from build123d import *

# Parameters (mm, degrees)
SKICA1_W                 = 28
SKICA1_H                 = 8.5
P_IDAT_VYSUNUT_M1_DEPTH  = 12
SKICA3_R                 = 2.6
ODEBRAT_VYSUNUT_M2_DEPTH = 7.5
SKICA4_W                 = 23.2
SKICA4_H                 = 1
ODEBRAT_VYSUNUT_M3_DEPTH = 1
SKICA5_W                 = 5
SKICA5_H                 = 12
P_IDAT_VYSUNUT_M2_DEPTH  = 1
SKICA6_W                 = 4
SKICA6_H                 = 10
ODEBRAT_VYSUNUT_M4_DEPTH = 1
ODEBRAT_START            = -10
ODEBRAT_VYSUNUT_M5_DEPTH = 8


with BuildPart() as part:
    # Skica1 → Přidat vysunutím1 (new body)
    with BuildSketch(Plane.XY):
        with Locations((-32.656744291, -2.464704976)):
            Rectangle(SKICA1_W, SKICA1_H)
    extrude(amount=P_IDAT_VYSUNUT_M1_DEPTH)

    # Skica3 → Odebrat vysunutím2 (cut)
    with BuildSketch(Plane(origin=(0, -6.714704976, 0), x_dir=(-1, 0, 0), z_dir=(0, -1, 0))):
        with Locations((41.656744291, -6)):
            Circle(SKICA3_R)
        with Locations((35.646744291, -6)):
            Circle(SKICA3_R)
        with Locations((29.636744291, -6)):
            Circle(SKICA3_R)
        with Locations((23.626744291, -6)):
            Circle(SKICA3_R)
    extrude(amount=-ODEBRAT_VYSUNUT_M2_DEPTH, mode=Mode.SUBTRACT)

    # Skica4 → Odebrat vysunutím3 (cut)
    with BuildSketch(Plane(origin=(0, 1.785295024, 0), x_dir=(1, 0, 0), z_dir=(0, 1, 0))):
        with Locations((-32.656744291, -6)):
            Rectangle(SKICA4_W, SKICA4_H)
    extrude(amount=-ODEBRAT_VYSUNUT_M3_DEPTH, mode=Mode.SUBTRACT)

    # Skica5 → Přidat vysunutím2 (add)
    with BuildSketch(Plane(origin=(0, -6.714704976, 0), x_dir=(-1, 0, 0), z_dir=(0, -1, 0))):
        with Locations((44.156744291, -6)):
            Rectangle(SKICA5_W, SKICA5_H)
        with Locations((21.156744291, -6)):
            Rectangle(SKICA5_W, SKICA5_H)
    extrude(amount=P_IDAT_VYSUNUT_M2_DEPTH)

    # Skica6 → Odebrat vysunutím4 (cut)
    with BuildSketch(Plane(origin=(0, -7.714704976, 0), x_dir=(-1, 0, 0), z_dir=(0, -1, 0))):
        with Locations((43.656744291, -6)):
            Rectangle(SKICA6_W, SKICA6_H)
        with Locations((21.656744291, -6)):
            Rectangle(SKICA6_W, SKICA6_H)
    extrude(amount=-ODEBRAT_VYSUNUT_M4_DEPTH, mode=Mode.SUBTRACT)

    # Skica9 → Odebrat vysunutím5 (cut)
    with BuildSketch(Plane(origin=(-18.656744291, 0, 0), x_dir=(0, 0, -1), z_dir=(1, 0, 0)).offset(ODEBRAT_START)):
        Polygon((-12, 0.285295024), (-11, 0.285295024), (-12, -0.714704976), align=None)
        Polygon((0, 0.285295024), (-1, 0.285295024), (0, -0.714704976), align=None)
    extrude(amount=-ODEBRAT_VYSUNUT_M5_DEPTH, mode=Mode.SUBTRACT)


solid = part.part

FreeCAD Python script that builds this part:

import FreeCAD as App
import Part
import Sketcher

V = App.Vector
Q = App.Units.Quantity

doc = App.newDocument("Part")
body = doc.addObject("PartDesign::Body", "Body")

# Sketch on XY plane
sketch1 = body.newObject("Sketcher::SketchObject", "Sketch")
sketch1.AttachmentSupport = (doc.getObject("XY_Plane"), [""])
sketch1.MapMode = "FlatFace"
sketch1.addGeometry([
    Part.LineSegment(V(-47, 2, 0), V(-47, -7, 0)),
    Part.LineSegment(V(-47, -7, 0), V(-19, -7, 0)),
    Part.LineSegment(V(-19, -7, 0), V(-19, 2, 0)),
    Part.LineSegment(V(-19, 2, 0), V(-47, 2, 0)),
], False)
sketch1.addConstraint([
    Sketcher.Constraint("Coincident", 0, 2, 1, 1),
    Sketcher.Constraint("Coincident", 1, 2, 2, 1),
    Sketcher.Constraint("Coincident", 2, 2, 3, 1),
    Sketcher.Constraint("Coincident", 3, 2, 0, 1),
    Sketcher.Constraint("Vertical", 0),
    Sketcher.Constraint("Horizontal", 1),
    Sketcher.Constraint("Vertical", 2),
    Sketcher.Constraint("Horizontal", 3),
    Sketcher.Constraint("DistanceX", 1, 1, 1, 2, Q("28 mm")),
    Sketcher.Constraint("DistanceY", 0, 2, 0, 1, Q("8.5 mm")),
    Sketcher.Constraint("DistanceX", 0, 2, -1, 1, Q("46.656744 mm")),
    Sketcher.Constraint("DistanceY", 0, 2, -1, 1, Q("6.714705 mm")),
])
pad1 = body.newObject("PartDesign::Pad", "Pad")
pad1.Profile = sketch1
pad1.Length = 12

# Sketch on XZ plane
sketch2 = body.newObject("Sketcher::SketchObject", "Sketch001")
sketch2.AttachmentSupport = (doc.getObject("XZ_Plane"), [""])
sketch2.MapMode = "FlatFace"
sketch2.AttachmentOffset = App.Placement(V(0, 0, 6.714705), App.Rotation())
sketch2.addGeometry([
    Part.Circle(V(-41.7, 6, 0), V(0, 0, 1), 2.6),
    Part.Circle(V(-35.6, 6, 0), V(0, 0, 1), 2.6),
    Part.Circle(V(-29.6, 6, 0), V(0, 0, 1), 2.6),
    Part.Circle(V(-23.6, 6, 0), V(0, 0, 1), 2.6),
], False)
sketch2.addConstraint([
    Sketcher.Constraint("Equal", 0, 1),
    Sketcher.Constraint("Equal", 1, 2),
    Sketcher.Constraint("Equal", 2, 3),
    Sketcher.Constraint("Horizontal", 0, 3, 1, 3),
    Sketcher.Constraint("Horizontal", 1, 3, 2, 3),
    Sketcher.Constraint("Horizontal", 2, 3, 3, 3),
    Sketcher.Constraint("Diameter", 0, Q("5.2 mm")),
    Sketcher.Constraint("DistanceY", -1, 1, 0, 3, Q("6 mm")),
    Sketcher.Constraint("DistanceX", 0, 3, 1, 3, Q("6.01 mm")),
    Sketcher.Constraint("DistanceX", 1, 3, 2, 3, Q("6.01 mm")),
    Sketcher.Constraint("DistanceX", 2, 3, 3, 3, Q("6.01 mm")),
    Sketcher.Constraint("DistanceX", 0, 3, -1, 1, Q("41.656744 mm")),
])
pocket1 = body.newObject("PartDesign::Pocket", "Pocket")
pocket1.Profile = sketch2
pocket1.Length = 7.5

# Sketch on XZ plane
sketch3 = body.newObject("Sketcher::SketchObject", "Sketch002")
sketch3.AttachmentSupport = (doc.getObject("XZ_Plane"), [""])
sketch3.MapMode = "FlatFace"
sketch3.AttachmentOffset = App.Placement(V(0, 0, -1.785295), App.Rotation())
sketch3.addGeometry([
    Part.LineSegment(V(-44.3, 5.5, 0), V(-44.3, 6.5, 0)),
    Part.LineSegment(V(-44.3, 6.5, 0), V(-21.1, 6.5, 0)),
    Part.LineSegment(V(-21.1, 6.5, 0), V(-21.1, 5.5, 0)),
    Part.LineSegment(V(-21.1, 5.5, 0), V(-44.3, 5.5, 0)),
], False)
sketch3.addConstraint([
    Sketcher.Constraint("Coincident", 0, 2, 1, 1),
    Sketcher.Constraint("Coincident", 1, 2, 2, 1),
    Sketcher.Constraint("Coincident", 2, 2, 3, 1),
    Sketcher.Constraint("Coincident", 3, 2, 0, 1),
    Sketcher.Constraint("Vertical", 0),
    Sketcher.Constraint("Horizontal", 1),
    Sketcher.Constraint("Vertical", 2),
    Sketcher.Constraint("Horizontal", 3),
    Sketcher.Constraint("DistanceY", 0, 1, 0, 2, Q("1 mm")),
    Sketcher.Constraint("DistanceX", 1, 1, 1, 2, Q("23.2 mm")),
    Sketcher.Constraint("DistanceY", -1, 1, 0, 2, Q("6.5 mm")),
    Sketcher.Constraint("DistanceX", 0, 2, -1, 1, Q("44.256744 mm")),
])
pocket2 = body.newObject("PartDesign::Pocket", "Pocket001")
pocket2.Profile = sketch3
pocket2.Length = 1
pocket2.Reversed = True

# Sketch on XZ plane
sketch4 = body.newObject("Sketcher::SketchObject", "Sketch003")
sketch4.AttachmentSupport = (doc.getObject("XZ_Plane"), [""])
sketch4.MapMode = "FlatFace"
sketch4.AttachmentOffset = App.Placement(V(0, 0, 6.714705), App.Rotation())
sketch4.addGeometry([
    Part.LineSegment(V(-42, 0, 0), V(-42, 12, 0)),  # 0
    Part.LineSegment(V(-42, 12, 0), V(-47, 12, 0)),  # 1
    Part.LineSegment(V(-47, 12, 0), V(-47, 0, 0)),  # 2
    Part.LineSegment(V(-47, 0, 0), V(-42, 0, 0)),  # 3
    Part.LineSegment(V(-19, 0, 0), V(-19, 12, 0)),  # 4
    Part.LineSegment(V(-19, 12, 0), V(-24, 12, 0)),  # 5
    Part.LineSegment(V(-24, 12, 0), V(-24, 0, 0)),  # 6
    Part.LineSegment(V(-24, 0, 0), V(-19, 0, 0)),  # 7
], False)
sketch4.addConstraint([
    Sketcher.Constraint("Coincident", 0, 2, 1, 1),
    Sketcher.Constraint("Coincident", 1, 2, 2, 1),
    Sketcher.Constraint("Coincident", 2, 2, 3, 1),
    Sketcher.Constraint("Coincident", 3, 2, 0, 1),
    Sketcher.Constraint("Coincident", 4, 2, 5, 1),
    Sketcher.Constraint("Coincident", 5, 2, 6, 1),
    Sketcher.Constraint("Coincident", 6, 2, 7, 1),
    Sketcher.Constraint("Coincident", 7, 2, 4, 1),
    Sketcher.Constraint("Vertical", 0),
    Sketcher.Constraint("Horizontal", 1),
    Sketcher.Constraint("Vertical", 2),
    Sketcher.Constraint("Horizontal", 3),
    Sketcher.Constraint("Vertical", 4),
    Sketcher.Constraint("Horizontal", 5),
    Sketcher.Constraint("Vertical", 6),
    Sketcher.Constraint("Horizontal", 7),
    Sketcher.Constraint("PointOnObject", 2, 2, -1),
    Sketcher.Constraint("PointOnObject", 6, 2, -1),
    Sketcher.Constraint("Horizontal", 1, 2, 4, 2),
    Sketcher.Constraint("Equal", 3, 5),
    Sketcher.Constraint("DistanceX", 1, 2, 1, 1, Q("5 mm")),
    Sketcher.Constraint("DistanceY", 0, 1, 0, 2, Q("12 mm")),
    Sketcher.Constraint("DistanceX", 0, 2, 4, 2, Q("23 mm")),
    Sketcher.Constraint("DistanceX", 0, 2, -1, 1, Q("41.656744 mm")),
])
pad2 = body.newObject("PartDesign::Pad", "Pad001")
pad2.Profile = sketch4
pad2.Length = 1

# Sketch on XZ plane
sketch5 = body.newObject("Sketcher::SketchObject", "Sketch004")
sketch5.AttachmentSupport = (doc.getObject("XZ_Plane"), [""])
sketch5.MapMode = "FlatFace"
sketch5.AttachmentOffset = App.Placement(V(0, 0, 7.714705), App.Rotation())
sketch5.addGeometry([
    Part.LineSegment(V(-41.7, 1, 0), V(-41.7, 11, 0)),  # 0
    Part.LineSegment(V(-41.7, 11, 0), V(-45.7, 11, 0)),  # 1
    Part.LineSegment(V(-45.7, 11, 0), V(-45.7, 1, 0)),  # 2
    Part.LineSegment(V(-45.7, 1, 0), V(-41.7, 1, 0)),  # 3
    Part.LineSegment(V(-19.7, 1, 0), V(-19.7, 11, 0)),  # 4
    Part.LineSegment(V(-19.7, 11, 0), V(-23.7, 11, 0)),  # 5
    Part.LineSegment(V(-23.7, 11, 0), V(-23.7, 1, 0)),  # 6
    Part.LineSegment(V(-23.7, 1, 0), V(-19.7, 1, 0)),  # 7
], False)
sketch5.addConstraint([
    Sketcher.Constraint("Coincident", 0, 2, 1, 1),
    Sketcher.Constraint("Coincident", 1, 2, 2, 1),
    Sketcher.Constraint("Coincident", 2, 2, 3, 1),
    Sketcher.Constraint("Coincident", 3, 2, 0, 1),
    Sketcher.Constraint("Coincident", 4, 2, 5, 1),
    Sketcher.Constraint("Coincident", 5, 2, 6, 1),
    Sketcher.Constraint("Coincident", 6, 2, 7, 1),
    Sketcher.Constraint("Coincident", 7, 2, 4, 1),
    Sketcher.Constraint("Vertical", 0),
    Sketcher.Constraint("Horizontal", 1),
    Sketcher.Constraint("Vertical", 2),
    Sketcher.Constraint("Horizontal", 3),
    Sketcher.Constraint("Vertical", 4),
    Sketcher.Constraint("Horizontal", 5),
    Sketcher.Constraint("Vertical", 6),
    Sketcher.Constraint("Horizontal", 7),
    Sketcher.Constraint("Horizontal", 1, 2, 4, 2),
    Sketcher.Constraint("Horizontal", 3, 2, 6, 2),
    Sketcher.Constraint("Equal", 3, 5),
    Sketcher.Constraint("DistanceX", 1, 2, 1, 1, Q("4 mm")),
    Sketcher.Constraint("DistanceY", 0, 1, 0, 2, Q("10 mm")),
    Sketcher.Constraint("DistanceY", -1, 1, 0, 2, Q("11 mm")),
    Sketcher.Constraint("DistanceX", 0, 2, 4, 2, Q("22 mm")),
    Sketcher.Constraint("DistanceX", 0, 2, -1, 1, Q("41.656744 mm")),
])
pocket3 = body.newObject("PartDesign::Pocket", "Pocket002")
pocket3.Profile = sketch5
pocket3.Length = 1

# Sketch on YZ plane
sketch6 = body.newObject("Sketcher::SketchObject", "Sketch005")
sketch6.AttachmentSupport = (doc.getObject("YZ_Plane"), [""])
sketch6.MapMode = "FlatFace"
sketch6.AttachmentOffset = App.Placement(V(0, 0, -28.656744), App.Rotation())
sketch6.addGeometry([
    Part.LineSegment(V(0.3, 11, 0), V(0.3, 12, 0)),  # 0
    Part.LineSegment(V(0.3, 12, 0), V(-0.7, 12, 0)),  # 1
    Part.LineSegment(V(-0.7, 12, 0), V(0.3, 11, 0)),  # 2
    Part.LineSegment(V(0.3, 0, 0), V(0.3, 1, 0)),  # 3
    Part.LineSegment(V(0.3, 1, 0), V(-0.7, 0, 0)),  # 4
    Part.LineSegment(V(-0.7, 0, 0), V(0.3, 0, 0)),  # 5
], False)
sketch6.addConstraint([
    Sketcher.Constraint("Coincident", 0, 2, 1, 1),
    Sketcher.Constraint("Coincident", 1, 2, 2, 1),
    Sketcher.Constraint("Coincident", 2, 2, 0, 1),
    Sketcher.Constraint("Coincident", 3, 2, 4, 1),
    Sketcher.Constraint("Coincident", 4, 2, 5, 1),
    Sketcher.Constraint("Coincident", 5, 2, 3, 1),
    Sketcher.Constraint("Vertical", 0),
    Sketcher.Constraint("Horizontal", 1),
    Sketcher.Constraint("Vertical", 3),
    Sketcher.Constraint("Horizontal", 5),
    Sketcher.Constraint("PointOnObject", 4, 2, -1),
    Sketcher.Constraint("Perpendicular", 2, 4),
    Sketcher.Constraint("Vertical", 2, 2, 3, 2),
    Sketcher.Constraint("Vertical", 1, 2, 4, 2),
    Sketcher.Constraint("Equal", 5, 0),
    Sketcher.Constraint("DistanceX", 1, 2, 1, 1, Q("1 mm")),
    Sketcher.Constraint("DistanceY", -1, 1, 0, 2, Q("12 mm")),
    Sketcher.Constraint("DistanceX", -1, 1, 0, 2, Q("0.285295 mm")),
])
pocket4 = body.newObject("PartDesign::Pocket", "Pocket003")
pocket4.Profile = sketch6
pocket4.Length = 8

doc.recompute()
